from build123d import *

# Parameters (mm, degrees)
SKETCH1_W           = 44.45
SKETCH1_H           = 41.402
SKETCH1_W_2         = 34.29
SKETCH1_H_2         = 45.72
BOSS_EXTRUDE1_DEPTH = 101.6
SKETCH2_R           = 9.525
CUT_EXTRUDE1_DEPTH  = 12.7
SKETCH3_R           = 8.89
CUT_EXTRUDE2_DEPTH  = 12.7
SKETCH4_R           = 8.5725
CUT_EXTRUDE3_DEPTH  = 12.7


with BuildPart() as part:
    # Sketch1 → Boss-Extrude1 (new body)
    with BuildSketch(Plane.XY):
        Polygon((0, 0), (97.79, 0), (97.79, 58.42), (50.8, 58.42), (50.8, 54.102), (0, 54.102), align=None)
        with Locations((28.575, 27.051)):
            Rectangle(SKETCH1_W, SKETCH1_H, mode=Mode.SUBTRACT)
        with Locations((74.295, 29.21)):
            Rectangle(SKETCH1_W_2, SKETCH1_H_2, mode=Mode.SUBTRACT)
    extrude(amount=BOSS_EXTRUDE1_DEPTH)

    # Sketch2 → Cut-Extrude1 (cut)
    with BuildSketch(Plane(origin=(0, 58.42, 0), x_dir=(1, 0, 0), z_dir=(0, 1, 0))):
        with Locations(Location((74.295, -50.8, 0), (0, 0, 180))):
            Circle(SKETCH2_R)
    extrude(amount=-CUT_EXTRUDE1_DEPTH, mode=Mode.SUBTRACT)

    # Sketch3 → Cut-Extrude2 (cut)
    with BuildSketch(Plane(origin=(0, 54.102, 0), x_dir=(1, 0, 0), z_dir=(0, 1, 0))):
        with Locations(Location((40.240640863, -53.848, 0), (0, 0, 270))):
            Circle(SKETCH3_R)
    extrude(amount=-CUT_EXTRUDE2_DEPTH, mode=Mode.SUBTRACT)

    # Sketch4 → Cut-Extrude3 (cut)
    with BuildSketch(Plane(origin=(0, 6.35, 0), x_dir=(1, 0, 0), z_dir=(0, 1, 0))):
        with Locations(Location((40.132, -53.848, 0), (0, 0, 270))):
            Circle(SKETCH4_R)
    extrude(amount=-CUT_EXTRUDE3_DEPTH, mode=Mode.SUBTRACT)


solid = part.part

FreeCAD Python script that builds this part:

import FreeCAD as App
import Part
import Sketcher

V = App.Vector
Q = App.Units.Quantity

doc = App.newDocument("Part")
body = doc.addObject("PartDesign::Body", "Body")

# Sketch on XY plane
sketch1 = doc.addObject("Sketcher::SketchObject", "Sketch")
body.addObject(sketch1)
sketch1.AttachmentSupport = (doc.XY_Plane, [""])
sketch1.MapMode = "FlatFace"
sketch1.addGeometry([
    Part.LineSegment(V(0, 0, 0), V(97.8, 0, 0)),  # 0
    Part.LineSegment(V(97.8, 0, 0), V(97.8, 58.4, 0)),  # 1
    Part.LineSegment(V(97.8, 58.4, 0), V(50.8, 58.4, 0)),  # 2
    Part.LineSegment(V(50.8, 58.4, 0), V(50.8, 54.1, 0)),  # 3
    Part.LineSegment(V(50.8, 54.1, 0), V(0, 54.1, 0)),  # 4
    Part.LineSegment(V(0, 54.1, 0), V(0, 0, 0)),  # 5
    Part.LineSegment(V(50.8, 6.3, 0), V(6.3, 6.3, 0)),  # 6
    Part.LineSegment(V(6.3, 6.3, 0), V(6.3, 47.8, 0)),  # 7
    Part.LineSegment(V(6.3, 47.8, 0), V(50.8, 47.8, 0)),  # 8
    Part.LineSegment(V(50.8, 47.8, 0), V(50.8, 6.3, 0)),  # 9
    Part.LineSegment(V(91.4, 6.3, 0), V(57.1, 6.3, 0)),  # 10
    Part.LineSegment(V(57.1, 6.3, 0), V(57.1, 52.1, 0)),  # 11
    Part.LineSegment(V(57.1, 52.1, 0), V(91.4, 52.1, 0)),  # 12
    Part.LineSegment(V(91.4, 52.1, 0), V(91.4, 6.3, 0)),  # 13
], False)
sketch1.addConstraint([
    Sketcher.Constraint("Coincident", 0, 2, 1, 1),
    Sketcher.Constraint("Coincident", 1, 2, 2, 1),
    Sketcher.Constraint("Coincident", 2, 2, 3, 1),
    Sketcher.Constraint("Coincident", 3, 2, 4, 1),
    Sketcher.Constraint("Coincident", 4, 2, 5, 1),
    Sketcher.Constraint("Coincident", 5, 2, 0, 1),
    Sketcher.Constraint("Coincident", 6, 2, 7, 1),
    Sketcher.Constraint("Coincident", 7, 2, 8, 1),
    Sketcher.Constraint("Coincident", 8, 2, 9, 1),
    Sketcher.Constraint("Coincident", 9, 2, 6, 1),
    Sketcher.Constraint("Coincident", 10, 2, 11, 1),
    Sketcher.Constraint("Coincident", 11, 2, 12, 1),
    Sketcher.Constraint("Coincident", 12, 2, 13, 1),
    Sketcher.Constraint("Coincident", 13, 2, 10, 1),
    Sketcher.Constraint("Horizontal", 0),
    Sketcher.Constraint("Vertical", 1),
    Sketcher.Constraint("Horizontal", 2),
    Sketcher.Constraint("Vertical", 3),
    Sketcher.Constraint("Horizontal", 4),
    Sketcher.Constraint("Vertical", 5),
    Sketcher.Constraint("Horizontal", 6),
    Sketcher.Constraint("Vertical", 7),
    Sketcher.Constraint("Horizontal", 8),
    Sketcher.Constraint("Vertical", 9),
    Sketcher.Constraint("Horizontal", 10),
    Sketcher.Constraint("Vertical", 11),
    Sketcher.Constraint("Horizontal", 12),
    Sketcher.Constraint("Vertical", 13),
    Sketcher.Constraint("Coincident", 5, 2, -1, 1),
    Sketcher.Constraint("Horizontal", 9, 2, 10, 2),
    Sketcher.Constraint("Vertical", 3, 2, 8, 2),
    Sketcher.Constraint("DistanceX", 4, 2, 4, 1, Q("2 in")),
    Sketcher.Constraint("DistanceY", 1, 1, 1, 2, Q("2.3 in")),
    Sketcher.Constraint("DistanceY", 11, 1, 11, 2, Q("1.8 in")),
    Sketcher.Constraint("DistanceX", 6, 2, 10, 2, Q("2 in")),
    Sketcher.Constraint("DistanceX", 0, 1, 0, 2, Q("3.85 in")),
    Sketcher.Constraint("DistanceX", 6, 2, 6, 1, Q("1.75 in")),
    Sketcher.Constraint("DistanceX", 10, 2, 10, 1, Q("1.35 in")),
    Sketcher.Constraint("DistanceY", 3, 2, 3, 1, Q("0.17 in")),
    Sketcher.Constraint("DistanceY", 7, 1, 7, 2, Q("1.63 in")),
    Sketcher.Constraint("DistanceY", -1, 1, 6, 2, Q("0.25 in")),
])
pad1 = doc.addObject("PartDesign::Pad", "Pad")
body.addObject(pad1)
pad1.Profile = sketch1
pad1.Length = Q("4 in")

# Sketch on XZ plane
sketch2 = doc.addObject("Sketcher::SketchObject", "Sketch001")
body.addObject(sketch2)
sketch2.AttachmentSupport = (doc.XZ_Plane, [""])
sketch2.MapMode = "FlatFace"
sketch2.AttachmentOffset = App.Placement(V(0, 0, -2.3 * 25.4), App.Rotation())
sketch2.addGeometry(Part.Circle(V(74, 51, 0), V(0, 0, 1), 10), False)
sketch2.addConstraint([
    Sketcher.Constraint("Diameter", 0, Q("0.75 in")),
    Sketcher.Constraint("DistanceY", -1, 1, 0, 3, Q("2 in")),
    Sketcher.Constraint("DistanceX", -1, 1, 0, 3, Q("2.925 in")),
])
pocket1 = doc.addObject("PartDesign::Pocket", "Pocket")
body.addObject(pocket1)
pocket1.Profile = sketch2
pocket1.Length = Q("0.5 in")
pocket1.Reversed = True

# Sketch on XZ plane
sketch3 = doc.addObject("Sketcher::SketchObject", "Sketch002")
body.addObject(sketch3)
sketch3.AttachmentSupport = (doc.XZ_Plane, [""])
sketch3.MapMode = "FlatFace"
sketch3.AttachmentOffset = App.Placement(V(0, 0, -2.13 * 25.4), App.Rotation())
sketch3.addGeometry(Part.Circle(V(40, 54, 0), V(0, 0, 1), 9), False)
sketch3.addConstraint([
    Sketcher.Constraint("Diameter", 0, Q("0.7 in")),
    Sketcher.Constraint("DistanceY", -1, 1, 0, 3, Q("2.12 in")),
    Sketcher.Constraint("DistanceX", -1, 1, 0, 3, 40.240641),
])
pocket2 = doc.addObject("PartDesign::Pocket", "Pocket001")
body.addObject(pocket2)
pocket2.Profile = sketch3
pocket2.Length = Q("0.5 in")
pocket2.Reversed = True

# Sketch on XZ plane
sketch4 = doc.addObject("Sketcher::SketchObject", "Sketch003")
body.addObject(sketch4)
sketch4.AttachmentSupport = (doc.XZ_Plane, [""])
sketch4.MapMode = "FlatFace"
sketch4.AttachmentOffset = App.Placement(V(0, 0, -0.25 * 25.4), App.Rotation())
sketch4.addGeometry(Part.Circle(V(40, 54, 0), V(0, 0, 1), 9), False)
sketch4.addConstraint([
    Sketcher.Constraint("Diameter", 0, Q("0.675 in")),
    Sketcher.Constraint("DistanceX", -1, 1, 0, 3, Q("1.58 in")),
    Sketcher.Constraint("DistanceY", -1, 1, 0, 3, Q("2.12 in")),
])
pocket3 = doc.addObject("PartDesign::Pocket", "Pocket002")
body.addObject(pocket3)
pocket3.Profile = sketch4
pocket3.Length = Q("0.5 in")
pocket3.Reversed = True

doc.recompute()
